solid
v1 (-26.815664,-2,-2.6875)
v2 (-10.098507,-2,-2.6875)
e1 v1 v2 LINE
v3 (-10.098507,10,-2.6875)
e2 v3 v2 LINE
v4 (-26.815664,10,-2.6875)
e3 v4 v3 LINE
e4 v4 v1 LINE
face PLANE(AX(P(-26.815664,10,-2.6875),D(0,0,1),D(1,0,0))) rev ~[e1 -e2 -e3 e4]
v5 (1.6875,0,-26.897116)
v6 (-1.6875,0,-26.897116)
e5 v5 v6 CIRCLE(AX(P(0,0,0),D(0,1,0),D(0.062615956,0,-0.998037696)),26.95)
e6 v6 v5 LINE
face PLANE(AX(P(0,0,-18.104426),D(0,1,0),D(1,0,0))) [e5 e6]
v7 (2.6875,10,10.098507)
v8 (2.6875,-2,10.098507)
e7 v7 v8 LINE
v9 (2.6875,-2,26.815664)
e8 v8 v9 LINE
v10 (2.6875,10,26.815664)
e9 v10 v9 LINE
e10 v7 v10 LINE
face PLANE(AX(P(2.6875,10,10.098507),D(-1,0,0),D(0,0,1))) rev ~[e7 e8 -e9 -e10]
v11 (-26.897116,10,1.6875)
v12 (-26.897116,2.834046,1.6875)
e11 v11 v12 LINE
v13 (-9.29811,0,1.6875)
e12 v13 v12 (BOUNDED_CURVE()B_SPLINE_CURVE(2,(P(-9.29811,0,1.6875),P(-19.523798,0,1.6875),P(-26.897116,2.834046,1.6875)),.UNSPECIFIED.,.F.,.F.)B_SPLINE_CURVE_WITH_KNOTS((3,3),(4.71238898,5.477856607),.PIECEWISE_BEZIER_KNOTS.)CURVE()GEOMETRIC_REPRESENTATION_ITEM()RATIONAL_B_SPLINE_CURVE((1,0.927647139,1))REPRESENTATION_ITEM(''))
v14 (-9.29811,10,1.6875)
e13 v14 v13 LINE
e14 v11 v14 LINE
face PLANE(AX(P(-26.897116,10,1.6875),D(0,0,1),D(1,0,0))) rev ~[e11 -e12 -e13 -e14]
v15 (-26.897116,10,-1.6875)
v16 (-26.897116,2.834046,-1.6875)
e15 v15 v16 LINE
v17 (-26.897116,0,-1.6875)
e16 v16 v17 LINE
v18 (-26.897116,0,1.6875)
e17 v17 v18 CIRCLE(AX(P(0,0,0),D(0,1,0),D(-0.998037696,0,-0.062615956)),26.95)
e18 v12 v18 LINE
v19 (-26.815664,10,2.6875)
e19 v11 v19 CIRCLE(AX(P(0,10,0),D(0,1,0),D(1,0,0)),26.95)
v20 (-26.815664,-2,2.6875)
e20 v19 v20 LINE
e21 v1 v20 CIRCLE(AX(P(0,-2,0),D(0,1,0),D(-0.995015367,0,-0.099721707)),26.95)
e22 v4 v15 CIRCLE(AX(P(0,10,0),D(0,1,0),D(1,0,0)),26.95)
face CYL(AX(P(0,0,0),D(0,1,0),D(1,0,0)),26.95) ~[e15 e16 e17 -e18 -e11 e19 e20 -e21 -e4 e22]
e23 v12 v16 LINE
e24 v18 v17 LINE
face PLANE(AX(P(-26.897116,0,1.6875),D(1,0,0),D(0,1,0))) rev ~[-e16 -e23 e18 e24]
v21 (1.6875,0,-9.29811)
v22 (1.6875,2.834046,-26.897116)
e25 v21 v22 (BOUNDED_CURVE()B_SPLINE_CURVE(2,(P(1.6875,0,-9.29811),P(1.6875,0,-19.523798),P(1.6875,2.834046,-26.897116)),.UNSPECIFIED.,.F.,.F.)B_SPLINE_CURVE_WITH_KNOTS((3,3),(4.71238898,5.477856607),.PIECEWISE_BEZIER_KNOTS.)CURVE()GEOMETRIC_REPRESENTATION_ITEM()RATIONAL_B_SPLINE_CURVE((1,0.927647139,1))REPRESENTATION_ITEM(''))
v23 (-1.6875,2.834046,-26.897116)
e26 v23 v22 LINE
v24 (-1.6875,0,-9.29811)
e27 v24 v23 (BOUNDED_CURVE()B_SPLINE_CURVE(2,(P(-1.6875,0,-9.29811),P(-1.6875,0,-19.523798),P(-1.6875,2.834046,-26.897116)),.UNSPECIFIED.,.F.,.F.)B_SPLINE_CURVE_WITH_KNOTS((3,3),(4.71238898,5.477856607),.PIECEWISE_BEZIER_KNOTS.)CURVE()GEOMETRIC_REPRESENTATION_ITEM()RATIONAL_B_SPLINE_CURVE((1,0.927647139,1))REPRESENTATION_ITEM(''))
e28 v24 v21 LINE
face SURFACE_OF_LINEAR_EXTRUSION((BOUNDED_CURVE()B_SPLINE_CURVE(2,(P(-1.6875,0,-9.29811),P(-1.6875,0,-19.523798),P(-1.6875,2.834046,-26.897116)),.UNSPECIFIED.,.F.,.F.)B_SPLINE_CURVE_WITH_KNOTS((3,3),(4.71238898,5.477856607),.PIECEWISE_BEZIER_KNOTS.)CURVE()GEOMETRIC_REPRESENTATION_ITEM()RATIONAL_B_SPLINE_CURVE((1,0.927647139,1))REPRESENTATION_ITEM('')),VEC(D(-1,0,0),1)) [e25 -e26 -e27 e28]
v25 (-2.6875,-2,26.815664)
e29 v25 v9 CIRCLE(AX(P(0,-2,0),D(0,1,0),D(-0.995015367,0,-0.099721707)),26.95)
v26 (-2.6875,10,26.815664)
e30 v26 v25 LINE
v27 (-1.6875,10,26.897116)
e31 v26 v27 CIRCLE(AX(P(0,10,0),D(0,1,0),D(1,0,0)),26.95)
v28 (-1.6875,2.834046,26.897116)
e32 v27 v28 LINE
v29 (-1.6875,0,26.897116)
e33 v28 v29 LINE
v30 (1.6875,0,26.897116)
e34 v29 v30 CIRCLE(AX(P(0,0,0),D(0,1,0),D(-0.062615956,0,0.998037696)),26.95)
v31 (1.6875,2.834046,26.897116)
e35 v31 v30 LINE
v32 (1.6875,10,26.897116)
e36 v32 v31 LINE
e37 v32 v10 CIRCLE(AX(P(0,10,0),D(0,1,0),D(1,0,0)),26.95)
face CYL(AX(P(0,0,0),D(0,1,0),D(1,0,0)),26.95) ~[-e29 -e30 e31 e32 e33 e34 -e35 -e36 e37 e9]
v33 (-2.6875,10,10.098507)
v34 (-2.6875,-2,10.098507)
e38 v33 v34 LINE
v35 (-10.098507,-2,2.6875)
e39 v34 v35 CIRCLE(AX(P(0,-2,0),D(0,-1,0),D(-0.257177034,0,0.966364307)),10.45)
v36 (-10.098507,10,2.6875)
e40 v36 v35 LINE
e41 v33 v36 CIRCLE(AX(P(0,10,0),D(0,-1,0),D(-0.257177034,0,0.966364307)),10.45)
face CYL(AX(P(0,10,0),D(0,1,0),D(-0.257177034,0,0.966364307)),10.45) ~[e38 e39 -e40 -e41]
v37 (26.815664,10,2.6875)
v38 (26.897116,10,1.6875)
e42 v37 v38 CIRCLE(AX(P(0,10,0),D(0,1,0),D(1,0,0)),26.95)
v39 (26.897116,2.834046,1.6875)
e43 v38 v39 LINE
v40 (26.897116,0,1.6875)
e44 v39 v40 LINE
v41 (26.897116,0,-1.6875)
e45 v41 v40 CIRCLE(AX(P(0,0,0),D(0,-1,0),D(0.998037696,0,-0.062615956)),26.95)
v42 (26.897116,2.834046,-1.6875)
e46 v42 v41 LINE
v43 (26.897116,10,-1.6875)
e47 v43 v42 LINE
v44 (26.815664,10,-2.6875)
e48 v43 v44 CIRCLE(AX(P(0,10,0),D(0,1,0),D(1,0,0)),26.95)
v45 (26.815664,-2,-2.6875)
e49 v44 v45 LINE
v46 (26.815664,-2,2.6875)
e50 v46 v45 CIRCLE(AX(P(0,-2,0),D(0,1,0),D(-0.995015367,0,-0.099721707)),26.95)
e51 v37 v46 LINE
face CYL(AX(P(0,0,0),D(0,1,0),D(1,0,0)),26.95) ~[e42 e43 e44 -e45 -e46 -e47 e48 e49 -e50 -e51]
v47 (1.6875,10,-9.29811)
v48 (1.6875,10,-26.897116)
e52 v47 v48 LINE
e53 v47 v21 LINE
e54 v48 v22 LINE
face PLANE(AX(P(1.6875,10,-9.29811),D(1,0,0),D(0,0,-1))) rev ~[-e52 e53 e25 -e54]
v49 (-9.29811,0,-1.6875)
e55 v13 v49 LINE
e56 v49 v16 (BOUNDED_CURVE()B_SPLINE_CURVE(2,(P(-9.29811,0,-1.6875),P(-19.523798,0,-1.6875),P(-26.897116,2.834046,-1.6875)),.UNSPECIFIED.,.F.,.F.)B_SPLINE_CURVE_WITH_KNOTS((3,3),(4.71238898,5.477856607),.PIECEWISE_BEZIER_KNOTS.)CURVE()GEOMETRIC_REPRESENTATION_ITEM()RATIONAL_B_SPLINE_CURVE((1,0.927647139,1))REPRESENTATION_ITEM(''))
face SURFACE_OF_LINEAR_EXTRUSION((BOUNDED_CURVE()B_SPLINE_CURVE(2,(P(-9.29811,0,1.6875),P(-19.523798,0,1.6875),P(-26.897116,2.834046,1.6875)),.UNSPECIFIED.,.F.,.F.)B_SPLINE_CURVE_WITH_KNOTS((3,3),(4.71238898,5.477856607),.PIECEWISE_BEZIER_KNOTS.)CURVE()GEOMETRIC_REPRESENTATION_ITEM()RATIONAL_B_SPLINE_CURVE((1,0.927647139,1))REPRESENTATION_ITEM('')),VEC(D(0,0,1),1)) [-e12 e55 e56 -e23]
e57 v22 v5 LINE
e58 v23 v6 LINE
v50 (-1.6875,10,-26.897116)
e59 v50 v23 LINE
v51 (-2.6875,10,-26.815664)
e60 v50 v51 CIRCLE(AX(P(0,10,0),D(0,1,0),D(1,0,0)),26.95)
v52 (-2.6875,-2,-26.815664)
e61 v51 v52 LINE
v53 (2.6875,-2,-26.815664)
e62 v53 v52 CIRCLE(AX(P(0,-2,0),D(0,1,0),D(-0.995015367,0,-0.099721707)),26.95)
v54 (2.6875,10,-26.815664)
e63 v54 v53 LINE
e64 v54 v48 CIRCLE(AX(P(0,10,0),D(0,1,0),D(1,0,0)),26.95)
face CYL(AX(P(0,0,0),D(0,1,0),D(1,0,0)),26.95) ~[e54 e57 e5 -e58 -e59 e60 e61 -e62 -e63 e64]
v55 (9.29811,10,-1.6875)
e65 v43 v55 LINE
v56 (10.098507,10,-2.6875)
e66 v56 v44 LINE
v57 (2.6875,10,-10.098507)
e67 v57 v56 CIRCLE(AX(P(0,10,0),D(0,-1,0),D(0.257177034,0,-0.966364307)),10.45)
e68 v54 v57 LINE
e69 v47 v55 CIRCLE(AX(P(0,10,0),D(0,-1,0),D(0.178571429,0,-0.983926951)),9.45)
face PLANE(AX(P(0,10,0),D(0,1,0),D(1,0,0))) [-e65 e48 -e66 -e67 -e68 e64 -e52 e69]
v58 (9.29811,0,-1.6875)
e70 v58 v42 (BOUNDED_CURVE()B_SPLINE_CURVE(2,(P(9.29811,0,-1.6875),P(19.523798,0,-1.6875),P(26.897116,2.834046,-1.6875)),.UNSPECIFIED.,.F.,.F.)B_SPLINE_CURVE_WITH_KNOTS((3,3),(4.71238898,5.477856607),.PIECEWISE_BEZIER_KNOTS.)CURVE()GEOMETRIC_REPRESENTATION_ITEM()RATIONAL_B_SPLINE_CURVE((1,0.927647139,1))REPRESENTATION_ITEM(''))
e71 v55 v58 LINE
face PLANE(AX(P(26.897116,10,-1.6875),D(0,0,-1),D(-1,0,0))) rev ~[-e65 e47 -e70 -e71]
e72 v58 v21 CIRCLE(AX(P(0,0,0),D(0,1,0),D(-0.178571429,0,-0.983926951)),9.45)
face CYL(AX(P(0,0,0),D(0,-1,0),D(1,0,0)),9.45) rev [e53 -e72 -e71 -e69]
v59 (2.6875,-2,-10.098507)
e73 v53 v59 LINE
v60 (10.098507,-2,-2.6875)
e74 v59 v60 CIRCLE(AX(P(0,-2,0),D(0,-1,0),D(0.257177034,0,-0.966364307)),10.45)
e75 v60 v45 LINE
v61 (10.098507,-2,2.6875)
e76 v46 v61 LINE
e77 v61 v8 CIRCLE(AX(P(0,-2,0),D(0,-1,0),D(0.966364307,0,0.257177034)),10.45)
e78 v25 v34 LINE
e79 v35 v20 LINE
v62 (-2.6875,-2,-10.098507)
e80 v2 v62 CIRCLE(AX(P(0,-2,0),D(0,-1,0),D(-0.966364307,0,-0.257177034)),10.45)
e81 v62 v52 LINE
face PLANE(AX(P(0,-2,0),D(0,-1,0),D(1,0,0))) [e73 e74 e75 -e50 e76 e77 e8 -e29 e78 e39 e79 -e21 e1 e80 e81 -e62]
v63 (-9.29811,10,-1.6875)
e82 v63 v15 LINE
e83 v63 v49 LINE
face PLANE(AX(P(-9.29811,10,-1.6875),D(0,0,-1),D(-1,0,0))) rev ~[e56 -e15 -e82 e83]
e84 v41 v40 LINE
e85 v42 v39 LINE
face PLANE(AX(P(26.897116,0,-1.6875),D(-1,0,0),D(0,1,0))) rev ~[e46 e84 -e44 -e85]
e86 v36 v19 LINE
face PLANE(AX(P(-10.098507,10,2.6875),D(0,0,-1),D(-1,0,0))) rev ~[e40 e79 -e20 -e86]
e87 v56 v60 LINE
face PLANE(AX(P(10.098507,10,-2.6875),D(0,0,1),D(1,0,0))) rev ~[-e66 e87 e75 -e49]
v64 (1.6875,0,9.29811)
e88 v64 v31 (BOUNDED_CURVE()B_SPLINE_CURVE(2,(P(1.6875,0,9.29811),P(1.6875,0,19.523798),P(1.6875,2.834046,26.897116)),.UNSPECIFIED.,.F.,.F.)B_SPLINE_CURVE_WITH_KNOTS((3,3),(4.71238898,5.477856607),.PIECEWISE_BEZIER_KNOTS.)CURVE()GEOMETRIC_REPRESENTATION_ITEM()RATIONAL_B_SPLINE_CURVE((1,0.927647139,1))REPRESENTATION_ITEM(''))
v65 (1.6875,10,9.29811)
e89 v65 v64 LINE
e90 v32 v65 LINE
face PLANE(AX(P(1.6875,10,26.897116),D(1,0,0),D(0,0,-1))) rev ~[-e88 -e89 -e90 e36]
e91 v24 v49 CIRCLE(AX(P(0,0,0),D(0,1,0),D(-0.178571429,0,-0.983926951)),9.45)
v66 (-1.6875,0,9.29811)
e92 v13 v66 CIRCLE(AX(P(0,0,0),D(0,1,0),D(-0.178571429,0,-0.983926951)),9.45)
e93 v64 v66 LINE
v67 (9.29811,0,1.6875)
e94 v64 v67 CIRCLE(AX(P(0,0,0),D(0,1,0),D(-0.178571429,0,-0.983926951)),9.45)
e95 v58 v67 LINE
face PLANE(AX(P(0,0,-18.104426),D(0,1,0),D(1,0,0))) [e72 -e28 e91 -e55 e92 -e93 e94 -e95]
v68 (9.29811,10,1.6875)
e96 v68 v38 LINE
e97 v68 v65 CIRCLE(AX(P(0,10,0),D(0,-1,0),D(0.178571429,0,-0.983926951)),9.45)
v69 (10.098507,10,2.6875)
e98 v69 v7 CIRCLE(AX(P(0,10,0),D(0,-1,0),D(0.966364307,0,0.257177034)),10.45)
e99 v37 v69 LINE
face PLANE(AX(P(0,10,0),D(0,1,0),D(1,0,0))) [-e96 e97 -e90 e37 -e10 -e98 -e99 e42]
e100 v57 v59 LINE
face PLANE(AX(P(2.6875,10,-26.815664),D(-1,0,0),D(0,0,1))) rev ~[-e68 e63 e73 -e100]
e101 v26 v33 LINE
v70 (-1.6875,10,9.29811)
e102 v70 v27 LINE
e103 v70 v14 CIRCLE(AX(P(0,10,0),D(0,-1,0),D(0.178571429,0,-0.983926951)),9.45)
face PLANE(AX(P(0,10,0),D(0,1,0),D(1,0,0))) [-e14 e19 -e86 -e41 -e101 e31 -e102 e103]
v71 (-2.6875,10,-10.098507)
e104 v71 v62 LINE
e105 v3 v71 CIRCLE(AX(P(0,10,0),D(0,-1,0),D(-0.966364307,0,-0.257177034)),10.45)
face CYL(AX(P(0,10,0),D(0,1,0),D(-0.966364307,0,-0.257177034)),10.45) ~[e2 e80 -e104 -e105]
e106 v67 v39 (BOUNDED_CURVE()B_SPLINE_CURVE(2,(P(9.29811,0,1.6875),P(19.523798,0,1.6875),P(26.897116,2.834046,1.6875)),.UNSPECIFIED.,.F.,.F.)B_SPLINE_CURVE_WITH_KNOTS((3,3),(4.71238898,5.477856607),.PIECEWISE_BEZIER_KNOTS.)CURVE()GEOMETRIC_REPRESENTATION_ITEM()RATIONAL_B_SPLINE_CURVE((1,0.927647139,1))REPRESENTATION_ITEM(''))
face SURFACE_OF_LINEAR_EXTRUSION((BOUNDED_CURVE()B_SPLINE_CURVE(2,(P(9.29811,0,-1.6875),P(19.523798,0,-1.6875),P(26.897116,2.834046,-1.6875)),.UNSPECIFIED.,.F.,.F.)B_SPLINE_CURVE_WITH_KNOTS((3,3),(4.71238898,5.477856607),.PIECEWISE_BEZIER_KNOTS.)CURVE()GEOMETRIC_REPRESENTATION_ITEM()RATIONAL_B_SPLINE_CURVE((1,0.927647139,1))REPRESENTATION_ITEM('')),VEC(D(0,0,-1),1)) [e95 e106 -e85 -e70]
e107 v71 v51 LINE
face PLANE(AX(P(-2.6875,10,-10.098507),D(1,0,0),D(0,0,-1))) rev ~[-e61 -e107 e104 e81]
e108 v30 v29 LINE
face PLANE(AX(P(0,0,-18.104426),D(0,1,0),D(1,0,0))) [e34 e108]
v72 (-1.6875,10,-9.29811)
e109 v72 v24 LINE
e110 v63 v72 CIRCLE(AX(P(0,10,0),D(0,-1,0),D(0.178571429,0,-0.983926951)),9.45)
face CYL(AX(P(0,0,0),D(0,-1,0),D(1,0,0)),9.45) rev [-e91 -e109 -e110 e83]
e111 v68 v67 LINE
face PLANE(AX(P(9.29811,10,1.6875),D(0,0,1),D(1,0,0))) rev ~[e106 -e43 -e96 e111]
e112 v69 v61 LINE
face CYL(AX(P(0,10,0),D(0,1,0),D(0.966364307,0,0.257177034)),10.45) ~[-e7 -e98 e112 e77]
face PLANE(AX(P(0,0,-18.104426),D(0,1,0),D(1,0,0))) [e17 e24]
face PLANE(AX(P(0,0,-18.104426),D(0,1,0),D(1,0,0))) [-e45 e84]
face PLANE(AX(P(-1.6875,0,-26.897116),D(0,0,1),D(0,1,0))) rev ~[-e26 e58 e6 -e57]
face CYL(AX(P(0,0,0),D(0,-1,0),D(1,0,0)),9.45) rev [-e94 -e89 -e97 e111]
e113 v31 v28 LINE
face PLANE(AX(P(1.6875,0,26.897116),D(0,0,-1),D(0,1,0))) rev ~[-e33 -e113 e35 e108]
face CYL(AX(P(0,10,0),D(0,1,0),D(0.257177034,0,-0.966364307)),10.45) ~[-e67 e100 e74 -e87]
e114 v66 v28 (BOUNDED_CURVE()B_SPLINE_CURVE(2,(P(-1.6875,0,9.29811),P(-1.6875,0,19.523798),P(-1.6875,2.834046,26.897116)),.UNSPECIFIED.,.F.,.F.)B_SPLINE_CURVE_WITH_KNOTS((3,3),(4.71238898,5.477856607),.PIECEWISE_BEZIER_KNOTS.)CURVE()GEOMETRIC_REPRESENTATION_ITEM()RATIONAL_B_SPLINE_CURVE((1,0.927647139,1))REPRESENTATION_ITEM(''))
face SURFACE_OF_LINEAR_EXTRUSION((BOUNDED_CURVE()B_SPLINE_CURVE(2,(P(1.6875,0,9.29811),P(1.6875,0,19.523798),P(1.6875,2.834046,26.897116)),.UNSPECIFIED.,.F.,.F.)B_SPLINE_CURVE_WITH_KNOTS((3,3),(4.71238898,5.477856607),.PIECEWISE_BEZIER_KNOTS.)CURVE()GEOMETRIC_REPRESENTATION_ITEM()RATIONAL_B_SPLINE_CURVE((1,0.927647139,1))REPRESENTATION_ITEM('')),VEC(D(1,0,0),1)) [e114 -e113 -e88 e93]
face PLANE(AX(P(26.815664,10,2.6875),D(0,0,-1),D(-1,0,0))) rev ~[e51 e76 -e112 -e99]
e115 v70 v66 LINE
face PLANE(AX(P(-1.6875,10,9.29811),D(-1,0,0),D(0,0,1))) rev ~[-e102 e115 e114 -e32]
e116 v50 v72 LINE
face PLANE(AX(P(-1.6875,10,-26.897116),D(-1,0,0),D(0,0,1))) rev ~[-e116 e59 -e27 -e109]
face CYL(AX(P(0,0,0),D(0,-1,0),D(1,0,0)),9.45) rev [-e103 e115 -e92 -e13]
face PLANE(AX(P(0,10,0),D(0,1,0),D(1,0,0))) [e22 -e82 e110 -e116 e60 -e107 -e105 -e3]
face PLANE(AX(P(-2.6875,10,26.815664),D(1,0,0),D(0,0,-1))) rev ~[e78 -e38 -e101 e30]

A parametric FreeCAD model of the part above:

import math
import FreeCAD as App
import Part
import Sketcher
from FreeCAD import Vector

doc = App.newDocument("Part")
body = doc.addObject("PartDesign::Body", "Body")

sketch1 = body.newObject("Sketcher::SketchObject", "Sketch")
sketch1.AttachmentSupport = (doc.getObject("XZ_Plane"), [""])
sketch1.MapMode = "FlatFace"
sketch1.addGeometry([
    Part.Circle(Vector(0, 0, 0), Vector(0, 0, 1), 27),
    Part.Circle(Vector(0, 0, 0), Vector(0, 0, 1), 9),
], False)
sketch1.addConstraint([
    Sketcher.Constraint("Coincident", 0, 3, -1, 1),
    Sketcher.Constraint("Coincident", 1, 3, -1, 1),
    Sketcher.Constraint("Diameter", 0, 53.9),
    Sketcher.Constraint("Diameter", 1, 18.9),
])
pad1 = body.newObject("PartDesign::Pad", "Pad")
pad1.Profile = sketch1
pad1.Length = 10
pad1.Reversed = True

sketch2 = body.newObject("Sketcher::SketchObject", "Sketch001")
sketch2.AttachmentSupport = (doc.getObject("XZ_Plane"), [""])
sketch2.MapMode = "FlatFace"
sketch2.addGeometry(Part.Circle(Vector(0, 0, 0), Vector(0, 0, 1), 27), False)
sketch2.addConstraint([
    Sketcher.Constraint("Coincident", 0, 3, -1, 1),
    Sketcher.Constraint("Diameter", 0, 53.9),
])
pad2 = body.newObject("PartDesign::Pad", "Pad001")
pad2.Profile = sketch2
pad2.Length = 2

sketch3 = body.newObject("Sketcher::SketchObject", "Sketch002")
sketch3.AttachmentSupport = (doc.getObject("XZ_Plane"), [""])
sketch3.MapMode = "FlatFace"
sketch3.AttachmentOffset = App.Placement(Vector(0, 0, -10), App.Rotation())
sketch3.addGeometry([
    Part.LineSegment(Vector(-1.7, -26.9, 0), Vector(-1.7, -9.3, 0)),
    Part.ArcOfCircle(Part.Circle(Vector(0, 0, 0), Vector(0, 0, 1), 9.5), math.radians(-100), math.radians(-80)),
    Part.LineSegment(Vector(1.7, -9.3, 0), Vector(1.7, -26.9, 0)),
    Part.ArcOfCircle(Part.Circle(Vector(0, 0, 0), Vector(0, 0, 1), 26.9), math.radians(-93.59), math.radians(-86.41)),
], False)
sketch3.addConstraint([
    Sketcher.Constraint("Coincident", 0, 2, 1, 1),
    Sketcher.Constraint("Coincident", 1, 2, 2, 1),
    Sketcher.Constraint("Coincident", 2, 2, 3, 2),
    Sketcher.Constraint("Coincident", 3, 1, 0, 1),
    Sketcher.Constraint("Vertical", 0),
    Sketcher.Constraint("Vertical", 2),
    Sketcher.Constraint("Coincident", 1, 3, -1, 1),
    Sketcher.Constraint("Coincident", 3, 3, -1, 1),
    Sketcher.Constraint("Horizontal", 0, 2, 1, 2),
    Sketcher.Constraint("Radius", 1, 9.45),
    Sketcher.Constraint("Radius", 3, 26.95),
    Sketcher.Constraint("DistanceX", 0, 2, 1, 2, 3.375),
])
pocket1 = body.newObject("PartDesign::Pocket", "Pocket")
pocket1.Profile = sketch3
pocket1.Length = 10
pocket1.Reversed = True

sketch4 = body.newObject("Sketcher::SketchObject", "Sketch003")
sketch4.AttachmentSupport = (doc.getObject("YZ_Plane"), [""])
sketch4.MapMode = "FlatFace"
sketch4.AttachmentOffset = App.Placement(Vector(0, 0, -1.6875), App.Rotation())
sketch4.addGeometry([
    Part.LineSegment(Vector(0, -26.897116, 0), Vector(2.834046, -26.897116, 0)),
    Part.BSplineCurve([Vector(0, -9.29811, 0), Vector(0, -19.523798, 0), Vector(2.834046, -26.897116, 0)], [3, 3], [4.71238898, 5.477856607], False, 2, [1, 0.927647139, 1], False),
    Part.LineSegment(Vector(0, -9.29811, 0), Vector(0, -26.897116, 0)),
], False)
sketch4.addConstraint([
    Sketcher.Constraint("Block", 1),
    Sketcher.Constraint("Coincident", 0, 2, 1, 2),
    Sketcher.Constraint("Coincident", 1, 1, 2, 1),
    Sketcher.Constraint("Coincident", 2, 2, 0, 1),
    Sketcher.Constraint("Horizontal", 0),
    Sketcher.Constraint("Vertical", 2),
])
pad3 = body.newObject("PartDesign::Pad", "Pad002")
pad3.Profile = sketch4
pad3.Length = 3.375
doc.recompute()

polarpattern = body.newObject("PartDesign::PolarPattern", "PolarPattern")
polarpattern.Originals = [pocket1, pad3]
polarpattern.Axis = (doc.getObject("Y_Axis"), [""])
polarpattern.Angle = 360
polarpattern.Occurrences = 4
body.Tip = polarpattern

sketch5 = body.newObject("Sketcher::SketchObject", "Sketch004")
sketch5.AttachmentSupport = (doc.getObject("XZ_Plane"), [""])
sketch5.MapMode = "FlatFace"
sketch5.AttachmentOffset = App.Placement(Vector(0, 0, -10), App.Rotation())
sketch5.addGeometry([
    Part.LineSegment(Vector(-27, -3, 0), Vector(-10, -3, 0)),
    Part.ArcOfCircle(Part.Circle(Vector(0, 0, 0), Vector(0, 0, 1), 10), math.radians(-165), math.radians(-105)),
    Part.LineSegment(Vector(-3, -10, 0), Vector(-3, -27, 0)),
    Part.ArcOfCircle(Part.Circle(Vector(0, 0, 0), Vector(0, 0, 1), 27), math.radians(-174), math.radians(-96)),
], False)
sketch5.addConstraint([
    Sketcher.Constraint("Coincident", 0, 2, 1, 1),
    Sketcher.Constraint("Coincident", 1, 2, 2, 1),
    Sketcher.Constraint("Coincident", 2, 2, 3, 2),
    Sketcher.Constraint("Coincident", 3, 1, 0, 1),
    Sketcher.Constraint("Horizontal", 0),
    Sketcher.Constraint("Vertical", 2),
    Sketcher.Constraint("Coincident", 1, 3, -1, 1),
    Sketcher.Constraint("Coincident", 3, 3, -1, 1),
    Sketcher.Constraint("Equal", 0, 2),
    Sketcher.Constraint("Radius", 1, 10.45),
    Sketcher.Constraint("Radius", 3, 26.95),
    Sketcher.Constraint("DistanceY", 0, 2, -1, 1, 2.6875),
])
pocket2 = body.newObject("PartDesign::Pocket", "Pocket001")
pocket2.Profile = sketch5
pocket2.Length = 12
pocket2.Reversed = True
doc.recompute()

polarpattern2 = body.newObject("PartDesign::PolarPattern", "PolarPattern001")
polarpattern2.Originals = [pocket2]
polarpattern2.Axis = (doc.getObject("Y_Axis"), [""])
polarpattern2.Angle = 360
polarpattern2.Occurrences = 4
body.Tip = polarpattern2

doc.recompute()
